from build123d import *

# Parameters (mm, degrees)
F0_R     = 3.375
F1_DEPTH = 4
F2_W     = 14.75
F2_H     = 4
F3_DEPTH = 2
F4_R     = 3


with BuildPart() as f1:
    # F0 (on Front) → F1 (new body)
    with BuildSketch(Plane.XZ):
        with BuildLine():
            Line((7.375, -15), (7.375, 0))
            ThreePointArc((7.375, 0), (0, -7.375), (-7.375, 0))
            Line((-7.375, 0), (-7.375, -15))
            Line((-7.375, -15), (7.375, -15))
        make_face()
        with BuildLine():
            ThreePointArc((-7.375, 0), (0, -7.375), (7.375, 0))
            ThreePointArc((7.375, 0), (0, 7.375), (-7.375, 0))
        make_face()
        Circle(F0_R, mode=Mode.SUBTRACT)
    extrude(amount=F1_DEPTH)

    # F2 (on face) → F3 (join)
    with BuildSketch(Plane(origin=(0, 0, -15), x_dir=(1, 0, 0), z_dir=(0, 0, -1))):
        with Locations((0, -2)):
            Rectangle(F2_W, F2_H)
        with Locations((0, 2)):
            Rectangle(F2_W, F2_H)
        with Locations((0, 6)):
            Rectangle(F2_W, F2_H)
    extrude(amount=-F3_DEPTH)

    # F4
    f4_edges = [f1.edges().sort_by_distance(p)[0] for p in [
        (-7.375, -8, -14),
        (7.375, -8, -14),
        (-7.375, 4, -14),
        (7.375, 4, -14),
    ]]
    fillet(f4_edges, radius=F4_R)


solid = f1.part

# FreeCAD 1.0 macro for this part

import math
import FreeCAD as App
import Part
import Sketcher

V = App.Vector


def edges_at(feature, points):
    """Names of the edges that pass closest to the given points."""
    edges = feature.Shape.Edges
    near = lambda p: min(range(len(edges)), key=lambda i: edges[i].distToShape(Part.Vertex(*p))[0])
    return sorted({f"Edge{near(p) + 1}" for p in points})


def add_polygon(sketch, points):
    """Adds a closed chain of lines whose ends are joined by coincident constraints."""
    first, n = sketch.GeometryCount, len(points)
    for a, b in zip(points, points[1:] + points[:1]):
        sketch.addGeometry(Part.LineSegment(App.Vector(*a, 0), App.Vector(*b, 0)), False)
    for i in range(n):
        sketch.addConstraint(Sketcher.Constraint("Coincident", first + i, 2, first + (i + 1) % n, 1))

doc = App.newDocument("Part")
body = doc.addObject("PartDesign::Body", "Body")

# Sketch on XZ plane
sketch1 = doc.addObject("Sketcher::SketchObject", "Sketch")
body.addObject(sketch1)
sketch1.AttachmentSupport = (doc.XZ_Plane, [""])
sketch1.MapMode = "FlatFace"
sketch1.addGeometry([
    Part.LineSegment(V(7.375, -15, 0), V(7.375, 0, 0)),  # 0
    Part.ArcOfCircle(Part.Circle(V(0, 0, 0), V(0, 0, 1), 7.375), math.radians(0), math.radians(180)),  # 1
    Part.LineSegment(V(-7.375, 0, 0), V(-7.375, -15, 0)),  # 2
    Part.LineSegment(V(-7.375, -15, 0), V(7.375, -15, 0)),  # 3
    Part.Circle(V(0, 0, 0), V(0, 0, 1), 3.375),  # 4
], False)
sketch1.addConstraint([
    Sketcher.Constraint("Tangent", 0, 2, 1, 1),
    Sketcher.Constraint("Tangent", 1, 2, 2, 1),
    Sketcher.Constraint("Coincident", 2, 2, 3, 1),
    Sketcher.Constraint("Coincident", 3, 2, 0, 1),
    Sketcher.Constraint("Vertical", 0),
    Sketcher.Constraint("Vertical", 2),
    Sketcher.Constraint("Horizontal", 3),
    Sketcher.Constraint("Coincident", 1, 3, -1, 1),
    Sketcher.Constraint("Coincident", 4, 3, -1, 1),
    Sketcher.Constraint("Diameter", 4, 6.75),
    Sketcher.Constraint("DistanceY", 0, 1, 0, 2, 15.0),
    Sketcher.Constraint("Radius", 1, 7.375),
])
pad1 = doc.addObject("PartDesign::Pad", "Pad")
body.addObject(pad1)
pad1.Profile = sketch1
pad1.Length = 4

# Sketch on XY plane
sketch2 = doc.addObject("Sketcher::SketchObject", "Sketch001")
body.addObject(sketch2)
sketch2.AttachmentSupport = (doc.XY_Plane, [""])
sketch2.MapMode = "FlatFace"
sketch2.AttachmentOffset = App.Placement(V(0, 0, -15), App.Rotation())
add_polygon(sketch2, [(-7.375, 4), (7.375, 4), (7.375, -8), (-7.375, -8)])  # lines 0-3
sketch2.addConstraint([
    Sketcher.Constraint("Horizontal", 0),
    Sketcher.Constraint("Vertical", 1),
    Sketcher.Constraint("Horizontal", 2),
    Sketcher.Constraint("Vertical", 3),
    Sketcher.Constraint("DistanceY", 1, 2, 1, 1, 12.0),
    Sketcher.Constraint("DistanceY", -1, 1, 0, 2, 4.0),
    Sketcher.Constraint("DistanceX", 0, 1, 0, 2, 14.75),
    Sketcher.Constraint("DistanceX", -1, 1, 0, 2, 7.375),
])
pad2 = doc.addObject("PartDesign::Pad", "Pad001")
body.addObject(pad2)
pad2.Profile = sketch2
pad2.Length = 2
doc.recompute()

fillet = doc.addObject("PartDesign::Fillet", "Fillet")
body.addObject(fillet)
fillet.Base = (pad2, edges_at(pad2, [
    (-7.375, -8, -14),
    (7.375, -8, -14),
    (-7.375, 4, -14),
    (7.375, 4, -14),
]))
fillet.Radius = 3

doc.recompute()
